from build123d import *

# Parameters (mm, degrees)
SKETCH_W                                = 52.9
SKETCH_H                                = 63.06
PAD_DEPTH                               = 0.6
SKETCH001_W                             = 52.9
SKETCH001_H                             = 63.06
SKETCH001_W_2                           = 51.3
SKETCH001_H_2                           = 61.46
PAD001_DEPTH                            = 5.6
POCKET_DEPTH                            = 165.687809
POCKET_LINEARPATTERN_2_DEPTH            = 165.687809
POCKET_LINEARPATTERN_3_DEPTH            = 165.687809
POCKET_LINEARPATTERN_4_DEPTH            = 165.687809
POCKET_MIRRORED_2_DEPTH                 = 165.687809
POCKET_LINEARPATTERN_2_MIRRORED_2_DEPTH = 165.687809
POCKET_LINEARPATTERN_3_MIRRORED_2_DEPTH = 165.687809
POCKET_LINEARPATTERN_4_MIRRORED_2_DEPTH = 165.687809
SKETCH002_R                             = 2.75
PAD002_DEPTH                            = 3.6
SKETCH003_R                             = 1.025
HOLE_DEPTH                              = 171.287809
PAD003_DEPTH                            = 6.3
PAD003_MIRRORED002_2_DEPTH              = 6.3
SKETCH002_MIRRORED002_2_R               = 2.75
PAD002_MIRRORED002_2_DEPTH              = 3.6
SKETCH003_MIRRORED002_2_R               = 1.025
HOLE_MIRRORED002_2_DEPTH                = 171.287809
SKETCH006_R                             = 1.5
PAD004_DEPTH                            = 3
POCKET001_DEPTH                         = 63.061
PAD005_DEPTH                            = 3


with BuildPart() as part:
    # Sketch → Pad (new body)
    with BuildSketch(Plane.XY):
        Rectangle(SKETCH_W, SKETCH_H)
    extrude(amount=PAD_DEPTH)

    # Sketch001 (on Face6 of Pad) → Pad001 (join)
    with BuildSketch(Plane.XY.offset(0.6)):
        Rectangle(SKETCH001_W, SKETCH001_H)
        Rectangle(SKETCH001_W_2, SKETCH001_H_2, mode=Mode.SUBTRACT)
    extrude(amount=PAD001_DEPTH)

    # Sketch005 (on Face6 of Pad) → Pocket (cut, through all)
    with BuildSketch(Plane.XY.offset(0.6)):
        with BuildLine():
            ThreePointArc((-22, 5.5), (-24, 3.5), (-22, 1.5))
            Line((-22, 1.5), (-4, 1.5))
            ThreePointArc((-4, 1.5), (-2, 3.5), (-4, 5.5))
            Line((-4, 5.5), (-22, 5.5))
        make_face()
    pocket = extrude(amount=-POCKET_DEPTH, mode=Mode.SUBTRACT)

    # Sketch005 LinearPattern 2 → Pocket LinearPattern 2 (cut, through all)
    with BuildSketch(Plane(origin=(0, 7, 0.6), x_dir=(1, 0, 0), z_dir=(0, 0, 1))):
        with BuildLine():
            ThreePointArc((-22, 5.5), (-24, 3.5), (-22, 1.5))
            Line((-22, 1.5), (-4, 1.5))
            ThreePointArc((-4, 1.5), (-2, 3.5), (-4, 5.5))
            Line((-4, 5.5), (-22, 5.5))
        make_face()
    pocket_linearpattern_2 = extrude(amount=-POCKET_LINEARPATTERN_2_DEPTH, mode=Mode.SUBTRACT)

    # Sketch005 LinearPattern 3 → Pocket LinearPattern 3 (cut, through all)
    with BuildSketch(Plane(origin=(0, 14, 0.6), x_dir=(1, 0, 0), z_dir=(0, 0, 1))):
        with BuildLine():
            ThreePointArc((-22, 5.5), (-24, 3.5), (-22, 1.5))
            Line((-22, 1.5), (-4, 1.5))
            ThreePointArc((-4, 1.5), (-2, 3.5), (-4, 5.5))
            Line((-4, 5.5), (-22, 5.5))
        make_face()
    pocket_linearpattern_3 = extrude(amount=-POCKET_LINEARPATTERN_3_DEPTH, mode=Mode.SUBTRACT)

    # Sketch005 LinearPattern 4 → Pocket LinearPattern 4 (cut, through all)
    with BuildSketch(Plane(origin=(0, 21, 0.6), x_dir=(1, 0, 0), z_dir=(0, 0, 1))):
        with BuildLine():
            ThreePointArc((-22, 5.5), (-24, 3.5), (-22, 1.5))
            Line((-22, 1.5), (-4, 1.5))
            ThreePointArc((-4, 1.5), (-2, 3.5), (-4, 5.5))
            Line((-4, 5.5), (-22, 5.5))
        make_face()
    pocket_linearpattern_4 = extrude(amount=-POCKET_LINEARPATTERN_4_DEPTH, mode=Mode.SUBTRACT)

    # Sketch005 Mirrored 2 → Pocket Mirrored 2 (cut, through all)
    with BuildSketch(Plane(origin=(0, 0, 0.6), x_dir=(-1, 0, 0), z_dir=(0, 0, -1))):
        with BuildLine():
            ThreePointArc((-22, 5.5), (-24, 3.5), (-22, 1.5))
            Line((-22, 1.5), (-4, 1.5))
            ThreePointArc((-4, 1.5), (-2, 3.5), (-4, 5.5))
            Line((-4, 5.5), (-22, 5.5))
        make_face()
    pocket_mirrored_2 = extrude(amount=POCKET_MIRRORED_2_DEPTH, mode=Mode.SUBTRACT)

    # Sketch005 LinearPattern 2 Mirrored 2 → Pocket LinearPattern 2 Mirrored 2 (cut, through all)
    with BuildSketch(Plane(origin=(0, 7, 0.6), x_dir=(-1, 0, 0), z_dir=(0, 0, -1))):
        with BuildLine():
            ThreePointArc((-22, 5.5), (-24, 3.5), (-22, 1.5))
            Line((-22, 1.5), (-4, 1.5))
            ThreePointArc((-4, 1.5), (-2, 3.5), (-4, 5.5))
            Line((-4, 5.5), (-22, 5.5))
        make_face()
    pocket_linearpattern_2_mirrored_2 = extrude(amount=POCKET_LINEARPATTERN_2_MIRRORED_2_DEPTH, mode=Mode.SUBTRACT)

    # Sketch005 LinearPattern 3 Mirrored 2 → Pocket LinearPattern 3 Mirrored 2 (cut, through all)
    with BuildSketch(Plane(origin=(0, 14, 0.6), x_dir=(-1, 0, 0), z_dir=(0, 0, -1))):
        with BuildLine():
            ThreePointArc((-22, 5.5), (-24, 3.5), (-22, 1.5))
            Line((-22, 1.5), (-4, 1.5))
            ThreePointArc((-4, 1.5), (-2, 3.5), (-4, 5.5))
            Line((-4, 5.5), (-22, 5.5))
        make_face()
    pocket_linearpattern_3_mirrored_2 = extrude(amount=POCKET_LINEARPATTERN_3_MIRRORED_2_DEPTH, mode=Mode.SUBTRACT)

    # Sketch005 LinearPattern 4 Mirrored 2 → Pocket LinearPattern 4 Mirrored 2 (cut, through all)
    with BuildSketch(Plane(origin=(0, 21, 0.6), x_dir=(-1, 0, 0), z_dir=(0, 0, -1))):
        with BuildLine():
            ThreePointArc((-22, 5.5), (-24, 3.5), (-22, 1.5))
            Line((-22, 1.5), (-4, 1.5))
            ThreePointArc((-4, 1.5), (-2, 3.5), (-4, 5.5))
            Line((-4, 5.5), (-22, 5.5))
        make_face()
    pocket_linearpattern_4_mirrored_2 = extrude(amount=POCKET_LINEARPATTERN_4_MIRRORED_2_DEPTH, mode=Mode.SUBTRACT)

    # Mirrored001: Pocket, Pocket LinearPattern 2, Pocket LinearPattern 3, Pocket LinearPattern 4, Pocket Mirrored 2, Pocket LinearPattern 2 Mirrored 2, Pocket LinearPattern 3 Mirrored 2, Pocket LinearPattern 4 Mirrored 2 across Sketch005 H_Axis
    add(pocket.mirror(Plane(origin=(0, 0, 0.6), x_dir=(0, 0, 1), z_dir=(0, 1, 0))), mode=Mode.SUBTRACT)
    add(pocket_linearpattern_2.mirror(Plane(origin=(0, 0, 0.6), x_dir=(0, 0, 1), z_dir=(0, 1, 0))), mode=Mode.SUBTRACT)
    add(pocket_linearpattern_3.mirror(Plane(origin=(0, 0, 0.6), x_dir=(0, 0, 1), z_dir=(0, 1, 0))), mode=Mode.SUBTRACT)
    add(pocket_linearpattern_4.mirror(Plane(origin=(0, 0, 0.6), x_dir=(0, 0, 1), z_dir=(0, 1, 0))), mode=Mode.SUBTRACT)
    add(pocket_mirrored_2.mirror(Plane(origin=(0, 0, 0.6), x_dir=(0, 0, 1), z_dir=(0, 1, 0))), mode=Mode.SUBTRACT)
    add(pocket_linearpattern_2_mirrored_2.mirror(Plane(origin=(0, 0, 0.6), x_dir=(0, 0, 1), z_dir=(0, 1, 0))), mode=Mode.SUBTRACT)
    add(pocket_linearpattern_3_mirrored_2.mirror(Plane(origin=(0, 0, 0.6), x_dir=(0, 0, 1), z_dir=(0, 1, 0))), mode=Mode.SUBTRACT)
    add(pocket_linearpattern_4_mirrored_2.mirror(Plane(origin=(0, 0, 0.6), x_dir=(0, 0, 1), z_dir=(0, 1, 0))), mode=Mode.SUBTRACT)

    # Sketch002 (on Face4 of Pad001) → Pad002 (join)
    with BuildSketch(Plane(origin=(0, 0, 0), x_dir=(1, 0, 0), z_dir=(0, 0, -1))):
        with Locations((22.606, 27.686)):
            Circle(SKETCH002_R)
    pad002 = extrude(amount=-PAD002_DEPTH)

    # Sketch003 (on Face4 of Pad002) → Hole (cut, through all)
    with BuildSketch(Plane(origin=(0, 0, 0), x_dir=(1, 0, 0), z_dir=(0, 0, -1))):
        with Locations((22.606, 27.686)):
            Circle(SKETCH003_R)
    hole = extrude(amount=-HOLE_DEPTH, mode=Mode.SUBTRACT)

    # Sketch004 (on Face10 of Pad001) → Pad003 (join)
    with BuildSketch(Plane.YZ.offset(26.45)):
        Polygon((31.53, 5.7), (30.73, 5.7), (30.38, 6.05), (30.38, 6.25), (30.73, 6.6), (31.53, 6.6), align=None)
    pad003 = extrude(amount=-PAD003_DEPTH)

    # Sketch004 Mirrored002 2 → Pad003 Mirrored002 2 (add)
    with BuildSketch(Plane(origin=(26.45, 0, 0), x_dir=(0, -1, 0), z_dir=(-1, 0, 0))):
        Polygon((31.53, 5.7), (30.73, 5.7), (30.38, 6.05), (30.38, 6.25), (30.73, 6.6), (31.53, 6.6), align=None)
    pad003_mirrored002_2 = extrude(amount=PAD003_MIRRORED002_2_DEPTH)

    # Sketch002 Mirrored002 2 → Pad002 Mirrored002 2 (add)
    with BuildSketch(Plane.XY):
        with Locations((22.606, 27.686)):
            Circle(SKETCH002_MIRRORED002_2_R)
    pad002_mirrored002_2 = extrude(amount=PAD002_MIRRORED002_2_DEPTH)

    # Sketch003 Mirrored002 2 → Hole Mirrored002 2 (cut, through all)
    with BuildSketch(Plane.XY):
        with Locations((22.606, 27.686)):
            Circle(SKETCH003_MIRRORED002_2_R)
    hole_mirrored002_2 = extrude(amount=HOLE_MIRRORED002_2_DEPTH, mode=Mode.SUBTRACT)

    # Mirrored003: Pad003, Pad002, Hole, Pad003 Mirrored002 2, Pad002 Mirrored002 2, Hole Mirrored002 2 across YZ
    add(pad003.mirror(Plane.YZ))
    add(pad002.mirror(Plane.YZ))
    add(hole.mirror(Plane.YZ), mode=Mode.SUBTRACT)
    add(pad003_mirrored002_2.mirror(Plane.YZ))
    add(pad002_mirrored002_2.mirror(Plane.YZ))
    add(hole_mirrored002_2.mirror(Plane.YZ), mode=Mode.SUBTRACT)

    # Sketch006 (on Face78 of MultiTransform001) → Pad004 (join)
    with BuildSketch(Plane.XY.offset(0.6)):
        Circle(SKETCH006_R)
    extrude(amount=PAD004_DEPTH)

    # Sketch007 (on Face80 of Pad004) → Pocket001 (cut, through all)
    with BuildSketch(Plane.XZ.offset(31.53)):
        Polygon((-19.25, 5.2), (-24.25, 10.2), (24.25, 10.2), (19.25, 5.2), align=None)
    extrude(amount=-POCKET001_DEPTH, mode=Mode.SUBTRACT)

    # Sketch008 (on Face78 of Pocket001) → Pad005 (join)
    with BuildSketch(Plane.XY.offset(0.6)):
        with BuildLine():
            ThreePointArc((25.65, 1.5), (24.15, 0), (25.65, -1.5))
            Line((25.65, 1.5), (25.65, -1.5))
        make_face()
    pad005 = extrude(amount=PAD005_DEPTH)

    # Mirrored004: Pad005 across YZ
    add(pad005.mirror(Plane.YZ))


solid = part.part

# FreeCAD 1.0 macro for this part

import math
import FreeCAD as App
import Part
import Sketcher

V = App.Vector
Q = App.Units.Quantity


def add_polygon(sketch, points):
    """Adds a closed chain of lines whose ends are joined by coincident constraints."""
    first, n = sketch.GeometryCount, len(points)
    for a, b in zip(points, points[1:] + points[:1]):
        sketch.addGeometry(Part.LineSegment(App.Vector(*a, 0), App.Vector(*b, 0)), False)
    for i in range(n):
        sketch.addConstraint(Sketcher.Constraint("Coincident", first + i, 2, first + (i + 1) % n, 1))

doc = App.newDocument("Part")
body = doc.addObject("PartDesign::Body", "Body")

sketch1 = body.newObject("Sketcher::SketchObject", "Sketch")
sketch1.AttachmentSupport = (doc.getObject("XY_Plane"), [""])
sketch1.MapMode = "FlatFace"
add_polygon(sketch1, [(-26, 32), (-26, -32), (26, -32), (26, 32)])
sketch1.addConstraint([
    Sketcher.Constraint("Vertical", 0),
    Sketcher.Constraint("Horizontal", 1),
    Sketcher.Constraint("Vertical", 2),
    Sketcher.Constraint("Horizontal", 3),
    Sketcher.Constraint("Symmetric", 0, 2, 2, 2, -1, 1),
    Sketcher.Constraint("DistanceX", 1, 1, 1, 2, Q("52.9 mm")),
    Sketcher.Constraint("DistanceY", 0, 2, 0, 1, Q("63.06 mm")),
])
pad1 = body.newObject("PartDesign::Pad", "Pad")
pad1.Profile = sketch1
pad1.Length = 0.6

sketch2 = body.newObject("Sketcher::SketchObject", "Sketch001")
sketch2.AttachmentSupport = (doc.getObject("XY_Plane"), [""])
sketch2.MapMode = "FlatFace"
sketch2.AttachmentOffset = App.Placement(V(0, 0, 0.6), App.Rotation())
add_polygon(sketch2, [(-26, 32), (-26, -32), (26, -32), (26, 32)])
add_polygon(sketch2, [(26, -31), (-26, -31), (-26, 31), (26, 31)])
sketch2.addConstraint([
    Sketcher.Constraint("Vertical", 0),
    Sketcher.Constraint("Horizontal", 1),
    Sketcher.Constraint("Vertical", 2),
    Sketcher.Constraint("Horizontal", 3),
    Sketcher.Constraint("Horizontal", 4),
    Sketcher.Constraint("Vertical", 5),
    Sketcher.Constraint("Horizontal", 6),
    Sketcher.Constraint("Vertical", 7),
    Sketcher.Constraint("Symmetric", 0, 2, 2, 2, -1, 1),
    Sketcher.Constraint("Symmetric", 4, 2, 6, 2, -1, 1),
    Sketcher.Constraint("DistanceX", 1, 1, 1, 2, Q("52.9 mm")),
    Sketcher.Constraint("DistanceX", 4, 2, 4, 1, Q("51.3 mm")),
    Sketcher.Constraint("DistanceY", 0, 2, 0, 1, Q("63.06 mm")),
    Sketcher.Constraint("DistanceY", 5, 1, 5, 2, Q("61.46 mm")),
])
pad2 = body.newObject("PartDesign::Pad", "Pad001")
pad2.Profile = sketch2
pad2.Length = 5.6

sketch3 = body.newObject("Sketcher::SketchObject", "Sketch002")
sketch3.AttachmentSupport = (doc.getObject("XY_Plane"), [""])
sketch3.MapMode = "FlatFace"
sketch3.AttachmentOffset = App.Placement(V(0, 0, 0.6), App.Rotation())
sketch3.addGeometry([
    Part.ArcOfCircle(Part.Circle(V(-22, 3.5, 0), V(0, 0, 1), 2), math.radians(90), math.radians(270)),
    Part.LineSegment(V(-22, 1.5, 0), V(-4, 1.5, 0)),
    Part.ArcOfCircle(Part.Circle(V(-4, 3.5, 0), V(0, 0, 1), 2), math.radians(-90), math.radians(90)),
    Part.LineSegment(V(-4, 5.5, 0), V(-22, 5.5, 0)),
], False)
sketch3.addConstraint([
    Sketcher.Constraint("Tangent", 0, 2, 1, 1),
    Sketcher.Constraint("Tangent", 1, 2, 2, 1),
    Sketcher.Constraint("Tangent", 2, 2, 3, 1),
    Sketcher.Constraint("Tangent", 3, 2, 0, 1),
    Sketcher.Constraint("Horizontal", 1),
    Sketcher.Constraint("Horizontal", 3),
    Sketcher.Constraint("Radius", 0, Q("2 mm")),
    Sketcher.Constraint("DistanceX", 1, 1, 1, 2, Q("18 mm")),
    Sketcher.Constraint("DistanceX", 0, 3, -1, 1, Q("22 mm")),
    Sketcher.Constraint("DistanceY", -1, 1, 0, 3, Q("3.5 mm")),
])
pocket1 = body.newObject("PartDesign::Pocket", "Pocket")
pocket1.Profile = sketch3
pocket1.Type = "ThroughAll"

sketch4 = body.newObject("Sketcher::SketchObject", "Sketch003")
sketch4.AttachmentSupport = (doc.getObject("XY_Plane"), [""])
sketch4.MapMode = "FlatFace"
sketch4.AttachmentOffset = App.Placement(V(0, 0, 0.6), App.Rotation())
sketch4.addGeometry([
    Part.ArcOfCircle(Part.Circle(V(-22, 10.5, 0), V(0, 0, 1), 2), math.radians(90), math.radians(270)),
    Part.LineSegment(V(-22, 8.5, 0), V(-4, 8.5, 0)),
    Part.ArcOfCircle(Part.Circle(V(-4, 10.5, 0), V(0, 0, 1), 2), math.radians(-90), math.radians(90)),
    Part.LineSegment(V(-4, 12.5, 0), V(-22, 12.5, 0)),
], False)
sketch4.addConstraint([
    Sketcher.Constraint("Tangent", 0, 2, 1, 1),
    Sketcher.Constraint("Tangent", 1, 2, 2, 1),
    Sketcher.Constraint("Tangent", 2, 2, 3, 1),
    Sketcher.Constraint("Tangent", 3, 2, 0, 1),
    Sketcher.Constraint("Horizontal", 1),
    Sketcher.Constraint("Horizontal", 3),
    Sketcher.Constraint("Radius", 0, Q("2 mm")),
    Sketcher.Constraint("DistanceX", 1, 1, 1, 2, Q("18 mm")),
    Sketcher.Constraint("DistanceX", 0, 3, -1, 1, Q("22 mm")),
    Sketcher.Constraint("DistanceY", -1, 1, 0, 3, Q("10.5 mm")),
])
pocket2 = body.newObject("PartDesign::Pocket", "Pocket001")
pocket2.Profile = sketch4
pocket2.Type = "ThroughAll"

sketch5 = body.newObject("Sketcher::SketchObject", "Sketch004")
sketch5.AttachmentSupport = (doc.getObject("XY_Plane"), [""])
sketch5.MapMode = "FlatFace"
sketch5.AttachmentOffset = App.Placement(V(0, 0, 0.6), App.Rotation())
sketch5.addGeometry([
    Part.ArcOfCircle(Part.Circle(V(-22, 17.5, 0), V(0, 0, 1), 2), math.radians(90), math.radians(270)),
    Part.LineSegment(V(-22, 15.5, 0), V(-4, 15.5, 0)),
    Part.ArcOfCircle(Part.Circle(V(-4, 17.5, 0), V(0, 0, 1), 2), math.radians(-90), math.radians(90)),
    Part.LineSegment(V(-4, 19.5, 0), V(-22, 19.5, 0)),
], False)
sketch5.addConstraint([
    Sketcher.Constraint("Tangent", 0, 2, 1, 1),
    Sketcher.Constraint("Tangent", 1, 2, 2, 1),
    Sketcher.Constraint("Tangent", 2, 2, 3, 1),
    Sketcher.Constraint("Tangent", 3, 2, 0, 1),
    Sketcher.Constraint("Horizontal", 1),
    Sketcher.Constraint("Horizontal", 3),
    Sketcher.Constraint("Radius", 0, Q("2 mm")),
    Sketcher.Constraint("DistanceX", 1, 1, 1, 2, Q("18 mm")),
    Sketcher.Constraint("DistanceX", 0, 3, -1, 1, Q("22 mm")),
    Sketcher.Constraint("DistanceY", -1, 1, 0, 3, Q("17.5 mm")),
])
pocket3 = body.newObject("PartDesign::Pocket", "Pocket002")
pocket3.Profile = sketch5
pocket3.Type = "ThroughAll"

sketch6 = body.newObject("Sketcher::SketchObject", "Sketch005")
sketch6.AttachmentSupport = (doc.getObject("XY_Plane"), [""])
sketch6.MapMode = "FlatFace"
sketch6.AttachmentOffset = App.Placement(V(0, 0, 0.6), App.Rotation())
sketch6.addGeometry([
    Part.ArcOfCircle(Part.Circle(V(-22, 24.5, 0), V(0, 0, 1), 2), math.radians(90), math.radians(270)),
    Part.LineSegment(V(-22, 22.5, 0), V(-4, 22.5, 0)),
    Part.ArcOfCircle(Part.Circle(V(-4, 24.5, 0), V(0, 0, 1), 2), math.radians(-90), math.radians(90)),
    Part.LineSegment(V(-4, 26.5, 0), V(-22, 26.5, 0)),
], False)
sketch6.addConstraint([
    Sketcher.Constraint("Tangent", 0, 2, 1, 1),
    Sketcher.Constraint("Tangent", 1, 2, 2, 1),
    Sketcher.Constraint("Tangent", 2, 2, 3, 1),
    Sketcher.Constraint("Tangent", 3, 2, 0, 1),
    Sketcher.Constraint("Horizontal", 1),
    Sketcher.Constraint("Horizontal", 3),
    Sketcher.Constraint("Radius", 0, Q("2 mm")),
    Sketcher.Constraint("DistanceX", 1, 1, 1, 2, Q("18 mm")),
    Sketcher.Constraint("DistanceX", 0, 3, -1, 1, Q("22 mm")),
    Sketcher.Constraint("DistanceY", -1, 1, 0, 3, Q("24.5 mm")),
])
pocket4 = body.newObject("PartDesign::Pocket", "Pocket003")
pocket4.Profile = sketch6
pocket4.Type = "ThroughAll"

sketch7 = body.newObject("Sketcher::SketchObject", "Sketch006")
sketch7.AttachmentSupport = (doc.getObject("XY_Plane"), [""])
sketch7.MapMode = "FlatFace"
sketch7.AttachmentOffset = App.Placement(V(0, 0, 0.6), App.Rotation())
sketch7.addGeometry([
    Part.ArcOfCircle(Part.Circle(V(22, 3.5, 0), V(0, 0, 1), 2), math.radians(-90), math.radians(90)),
    Part.LineSegment(V(22, 1.5, 0), V(4, 1.5, 0)),
    Part.ArcOfCircle(Part.Circle(V(4, 3.5, 0), V(0, 0, 1), 2), math.radians(90), math.radians(270)),
    Part.LineSegment(V(4, 5.5, 0), V(22, 5.5, 0)),
], False)
sketch7.addConstraint([
    Sketcher.Constraint("Tangent", 0, 1, 1, 1),
    Sketcher.Constraint("Tangent", 1, 2, 2, 2),
    Sketcher.Constraint("Tangent", 2, 1, 3, 1),
    Sketcher.Constraint("Tangent", 3, 2, 0, 2),
    Sketcher.Constraint("Horizontal", 1),
    Sketcher.Constraint("Horizontal", 3),
    Sketcher.Constraint("Radius", 0, Q("2 mm")),
    Sketcher.Constraint("DistanceX", 1, 2, 1, 1, Q("18 mm")),
    Sketcher.Constraint("DistanceX", -1, 1, 0, 3, Q("22 mm")),
    Sketcher.Constraint("DistanceY", -1, 1, 0, 3, Q("3.5 mm")),
])
pocket5 = body.newObject("PartDesign::Pocket", "Pocket004")
pocket5.Profile = sketch7
pocket5.Type = "ThroughAll"

sketch8 = body.newObject("Sketcher::SketchObject", "Sketch007")
sketch8.AttachmentSupport = (doc.getObject("XY_Plane"), [""])
sketch8.MapMode = "FlatFace"
sketch8.AttachmentOffset = App.Placement(V(0, 0, 0.6), App.Rotation())
sketch8.addGeometry([
    Part.ArcOfCircle(Part.Circle(V(22, 10.5, 0), V(0, 0, 1), 2), math.radians(-90), math.radians(90)),
    Part.LineSegment(V(22, 8.5, 0), V(4, 8.5, 0)),
    Part.ArcOfCircle(Part.Circle(V(4, 10.5, 0), V(0, 0, 1), 2), math.radians(90), math.radians(270)),
    Part.LineSegment(V(4, 12.5, 0), V(22, 12.5, 0)),
], False)
sketch8.addConstraint([
    Sketcher.Constraint("Tangent", 0, 1, 1, 1),
    Sketcher.Constraint("Tangent", 1, 2, 2, 2),
    Sketcher.Constraint("Tangent", 2, 1, 3, 1),
    Sketcher.Constraint("Tangent", 3, 2, 0, 2),
    Sketcher.Constraint("Horizontal", 1),
    Sketcher.Constraint("Horizontal", 3),
    Sketcher.Constraint("Radius", 0, Q("2 mm")),
    Sketcher.Constraint("DistanceX", 1, 2, 1, 1, Q("18 mm")),
    Sketcher.Constraint("DistanceX", -1, 1, 0, 3, Q("22 mm")),
    Sketcher.Constraint("DistanceY", -1, 1, 0, 3, Q("10.5 mm")),
])
pocket6 = body.newObject("PartDesign::Pocket", "Pocket005")
pocket6.Profile = sketch8
pocket6.Type = "ThroughAll"

sketch9 = body.newObject("Sketcher::SketchObject", "Sketch008")
sketch9.AttachmentSupport = (doc.getObject("XY_Plane"), [""])
sketch9.MapMode = "FlatFace"
sketch9.AttachmentOffset = App.Placement(V(0, 0, 0.6), App.Rotation())
sketch9.addGeometry([
    Part.ArcOfCircle(Part.Circle(V(22, 17.5, 0), V(0, 0, 1), 2), math.radians(-90), math.radians(90)),
    Part.LineSegment(V(22, 15.5, 0), V(4, 15.5, 0)),
    Part.ArcOfCircle(Part.Circle(V(4, 17.5, 0), V(0, 0, 1), 2), math.radians(90), math.radians(270)),
    Part.LineSegment(V(4, 19.5, 0), V(22, 19.5, 0)),
], False)
sketch9.addConstraint([
    Sketcher.Constraint("Tangent", 0, 1, 1, 1),
    Sketcher.Constraint("Tangent", 1, 2, 2, 2),
    Sketcher.Constraint("Tangent", 2, 1, 3, 1),
    Sketcher.Constraint("Tangent", 3, 2, 0, 2),
    Sketcher.Constraint("Horizontal", 1),
    Sketcher.Constraint("Horizontal", 3),
    Sketcher.Constraint("Radius", 0, Q("2 mm")),
    Sketcher.Constraint("DistanceX", 1, 2, 1, 1, Q("18 mm")),
    Sketcher.Constraint("DistanceX", -1, 1, 0, 3, Q("22 mm")),
    Sketcher.Constraint("DistanceY", -1, 1, 0, 3, Q("17.5 mm")),
])
pocket7 = body.newObject("PartDesign::Pocket", "Pocket006")
pocket7.Profile = sketch9
pocket7.Type = "ThroughAll"

sketch10 = body.newObject("Sketcher::SketchObject", "Sketch009")
sketch10.AttachmentSupport = (doc.getObject("XY_Plane"), [""])
sketch10.MapMode = "FlatFace"
sketch10.AttachmentOffset = App.Placement(V(0, 0, 0.6), App.Rotation())
sketch10.addGeometry([
    Part.ArcOfCircle(Part.Circle(V(22, 24.5, 0), V(0, 0, 1), 2), math.radians(-90), math.radians(90)),
    Part.LineSegment(V(22, 22.5, 0), V(4, 22.5, 0)),
    Part.ArcOfCircle(Part.Circle(V(4, 24.5, 0), V(0, 0, 1), 2), math.radians(90), math.radians(270)),
    Part.LineSegment(V(4, 26.5, 0), V(22, 26.5, 0)),
], False)
sketch10.addConstraint([
    Sketcher.Constraint("Tangent", 0, 1, 1, 1),
    Sketcher.Constraint("Tangent", 1, 2, 2, 2),
    Sketcher.Constraint("Tangent", 2, 1, 3, 1),
    Sketcher.Constraint("Tangent", 3, 2, 0, 2),
    Sketcher.Constraint("Horizontal", 1),
    Sketcher.Constraint("Horizontal", 3),
    Sketcher.Constraint("Radius", 0, Q("2 mm")),
    Sketcher.Constraint("DistanceX", 1, 2, 1, 1, Q("18 mm")),
    Sketcher.Constraint("DistanceX", -1, 1, 0, 3, Q("22 mm")),
    Sketcher.Constraint("DistanceY", -1, 1, 0, 3, Q("24.5 mm")),
])
pocket8 = body.newObject("PartDesign::Pocket", "Pocket007")
pocket8.Profile = sketch10
pocket8.Type = "ThroughAll"
doc.recompute()

mirrored = body.newObject("PartDesign::Mirrored", "Mirrored")
mirrored.Originals = [pocket1, pocket2, pocket3, pocket4, pocket5, pocket6, pocket7, pocket8]
mirrored.MirrorPlane = (doc.getObject("XZ_Plane"), [""])
body.Tip = mirrored

sketch11 = body.newObject("Sketcher::SketchObject", "Sketch010")
sketch11.AttachmentSupport = (doc.getObject("XY_Plane"), [""])
sketch11.MapMode = "FlatFace"
sketch11.addGeometry(Part.Circle(V(22.6, -27.7, 0), V(0, 0, 1), 2.8), False)
sketch11.addConstraint([
    Sketcher.Constraint("Diameter", 0, Q("5.5 mm")),
    Sketcher.Constraint("DistanceX", -1, 1, 0, 3, Q("22.606 mm")),
    Sketcher.Constraint("DistanceY", 0, 3, -1, 1, Q("27.686 mm")),
])
pad3 = body.newObject("PartDesign::Pad", "Pad002")
pad3.Profile = sketch11
pad3.Length = 3.6

sketch12 = body.newObject("Sketcher::SketchObject", "Sketch011")
sketch12.AttachmentSupport = (doc.getObject("XY_Plane"), [""])
sketch12.MapMode = "FlatFace"
sketch12.addGeometry(Part.Circle(V(22.6, -27.7, 0), V(0, 0, 1), 1), False)
sketch12.addConstraint([
    Sketcher.Constraint("Diameter", 0, Q("2.05 mm")),
    Sketcher.Constraint("DistanceX", -1, 1, 0, 3, Q("22.606 mm")),
    Sketcher.Constraint("DistanceY", 0, 3, -1, 1, Q("27.686 mm")),
])
pocket9 = body.newObject("PartDesign::Pocket", "Pocket008")
pocket9.Profile = sketch12
pocket9.Type = "ThroughAll"
pocket9.Reversed = True

sketch13 = body.newObject("Sketcher::SketchObject", "Sketch012")
sketch13.AttachmentSupport = (doc.getObject("YZ_Plane"), [""])
sketch13.MapMode = "FlatFace"
sketch13.AttachmentOffset = App.Placement(V(0, 0, 26.45), App.Rotation())
add_polygon(sketch13, [(30.73, 5.7), (31.53, 5.7), (31.53, 6.6), (30.73, 6.6), (30.38, 6.25), (30.38, 6.05)])
sketch13.addConstraint([
    Sketcher.Constraint("Horizontal", 0),
    Sketcher.Constraint("Vertical", 1),
    Sketcher.Constraint("Horizontal", 2),
    Sketcher.Constraint("Vertical", 4),
    Sketcher.Constraint("Perpendicular", 3, 5),
    Sketcher.Constraint("Vertical", 2, 2, 5, 2),
    Sketcher.Constraint("Equal", 3, 5),
    Sketcher.Constraint("DistanceX", 0, 1, 0, 2, Q("0.8 mm")),
    Sketcher.Constraint("DistanceY", 1, 1, 1, 2, Q("0.9 mm")),
    Sketcher.Constraint("DistanceY", 4, 2, 4, 1, Q("0.2 mm")),
    Sketcher.Constraint("DistanceY", -1, 1, 0, 2, Q("5.7 mm")),
    Sketcher.Constraint("DistanceX", -1, 1, 0, 2, Q("31.53 mm")),
])
pad4 = body.newObject("PartDesign::Pad", "Pad003")
pad4.Profile = sketch13
pad4.Length = 6.3
pad4.Reversed = True

sketch14 = body.newObject("Sketcher::SketchObject", "Sketch013")
sketch14.AttachmentSupport = (doc.getObject("YZ_Plane"), [""])
sketch14.MapMode = "FlatFace"
sketch14.AttachmentOffset = App.Placement(V(0, 0, 26.45), App.Rotation())
add_polygon(sketch14, [(-30.73, 5.7), (-31.53, 5.7), (-31.53, 6.6), (-30.73, 6.6), (-30.38, 6.25), (-30.38, 6.05)])
sketch14.addConstraint([
    Sketcher.Constraint("Horizontal", 0),
    Sketcher.Constraint("Vertical", 1),
    Sketcher.Constraint("Horizontal", 2),
    Sketcher.Constraint("Vertical", 4),
    Sketcher.Constraint("Perpendicular", 3, 5),
    Sketcher.Constraint("Vertical", 2, 2, 5, 2),
    Sketcher.Constraint("Equal", 3, 5),
    Sketcher.Constraint("DistanceX", 0, 2, 0, 1, Q("0.8 mm")),
    Sketcher.Constraint("DistanceY", 1, 1, 1, 2, Q("0.9 mm")),
    Sketcher.Constraint("DistanceY", 4, 2, 4, 1, Q("0.2 mm")),
    Sketcher.Constraint("DistanceY", -1, 1, 0, 2, Q("5.7 mm")),
    Sketcher.Constraint("DistanceX", 0, 2, -1, 1, Q("31.53 mm")),
])
pad5 = body.newObject("PartDesign::Pad", "Pad004")
pad5.Profile = sketch14
pad5.Length = 6.3
pad5.Reversed = True

sketch15 = body.newObject("Sketcher::SketchObject", "Sketch014")
sketch15.AttachmentSupport = (doc.getObject("XY_Plane"), [""])
sketch15.MapMode = "FlatFace"
sketch15.addGeometry(Part.Circle(V(22.6, 27.7, 0), V(0, 0, 1), 2.8), False)
sketch15.addConstraint([
    Sketcher.Constraint("Diameter", 0, Q("5.5 mm")),
    Sketcher.Constraint("DistanceX", -1, 1, 0, 3, Q("22.606 mm")),
    Sketcher.Constraint("DistanceY", -1, 1, 0, 3, Q("27.686 mm")),
])
pad6 = body.newObject("PartDesign::Pad", "Pad005")
pad6.Profile = sketch15
pad6.Length = 3.6

sketch16 = body.newObject("Sketcher::SketchObject", "Sketch015")
sketch16.AttachmentSupport = (doc.getObject("XY_Plane"), [""])
sketch16.MapMode = "FlatFace"
sketch16.addGeometry(Part.Circle(V(22.6, 27.7, 0), V(0, 0, 1), 1), False)
sketch16.addConstraint([
    Sketcher.Constraint("Diameter", 0, Q("2.05 mm")),
    Sketcher.Constraint("DistanceX", -1, 1, 0, 3, Q("22.606 mm")),
    Sketcher.Constraint("DistanceY", -1, 1, 0, 3, Q("27.686 mm")),
])
pocket10 = body.newObject("PartDesign::Pocket", "Pocket009")
pocket10.Profile = sketch16
pocket10.Type = "ThroughAll"
pocket10.Reversed = True
doc.recompute()

mirrored2 = body.newObject("PartDesign::Mirrored", "Mirrored001")
mirrored2.Originals = [pad4, pad3, pocket9, pad5, pad6, pocket10]
mirrored2.MirrorPlane = (doc.getObject("YZ_Plane"), [""])
body.Tip = mirrored2

sketch17 = body.newObject("Sketcher::SketchObject", "Sketch016")
sketch17.AttachmentSupport = (doc.getObject("XY_Plane"), [""])
sketch17.MapMode = "FlatFace"
sketch17.AttachmentOffset = App.Placement(V(0, 0, 0.6), App.Rotation())
sketch17.addGeometry(Part.Circle(V(0, 0, 0), V(0, 0, 1), 1.5), False)
sketch17.addConstraint([
    Sketcher.Constraint("Coincident", 0, 3, -1, 1),
    Sketcher.Constraint("Diameter", 0, Q("3 mm")),
])
pad7 = body.newObject("PartDesign::Pad", "Pad006")
pad7.Profile = sketch17
pad7.Length = 3

sketch18 = body.newObject("Sketcher::SketchObject", "Sketch017")
sketch18.AttachmentSupport = (doc.getObject("XZ_Plane"), [""])
sketch18.MapMode = "FlatFace"
sketch18.AttachmentOffset = App.Placement(V(0, 0, 31.53), App.Rotation())
add_polygon(sketch18, [(-24, 10), (-19, 5), (19, 5), (24, 10)])
sketch18.addConstraint([
    Sketcher.Constraint("Horizontal", 1),
    Sketcher.Constraint("Horizontal", 3),
    Sketcher.Constraint("Perpendicular", 0, 2),
    Sketcher.Constraint("Equal", 0, 2),
    Sketcher.Constraint("DistanceX", 1, 1, 1, 2, Q("38.5 mm")),
    Sketcher.Constraint("DistanceX", 3, 2, 3, 1, Q("48.5 mm")),
    Sketcher.Constraint("DistanceY", -1, 1, 0, 2, Q("5.2 mm")),
    Sketcher.Constraint("DistanceX", 0, 2, -1, 1, Q("19.25 mm")),
])
pocket11 = body.newObject("PartDesign::Pocket", "Pocket010")
pocket11.Profile = sketch18
pocket11.Type = "ThroughAll"

sketch19 = body.newObject("Sketcher::SketchObject", "Sketch018")
sketch19.AttachmentSupport = (doc.getObject("XY_Plane"), [""])
sketch19.MapMode = "FlatFace"
sketch19.AttachmentOffset = App.Placement(V(0, 0, 0.6), App.Rotation())
sketch19.addGeometry([
    Part.ArcOfCircle(Part.Circle(V(25.6, 0, 0), V(0, 0, 1), 1.5), math.radians(90), math.radians(270)),
    Part.LineSegment(V(25.6, -1.5, 0), V(25.6, 1.5, 0)),
], False)
sketch19.addConstraint([
    Sketcher.Constraint("Coincident", 0, 1, 1, 2),
    Sketcher.Constraint("Coincident", 1, 1, 0, 2),
    Sketcher.Constraint("Vertical", 1),
    Sketcher.Constraint("PointOnObject", 0, 3, -1),
    Sketcher.Constraint("Radius", 0, Q("1.5 mm")),
    Sketcher.Constraint("DistanceX", -1, 1, 0, 3, Q("25.65 mm")),
    Sketcher.Constraint("DistanceX", -1, 1, 0, 1, Q("25.65 mm")),
])
pad8 = body.newObject("PartDesign::Pad", "Pad007")
pad8.Profile = sketch19
pad8.Length = 3
doc.recompute()

mirrored3 = body.newObject("PartDesign::Mirrored", "Mirrored002")
mirrored3.Originals = [pad8]
mirrored3.MirrorPlane = (doc.getObject("YZ_Plane"), [""])
body.Tip = mirrored3

doc.recompute()
